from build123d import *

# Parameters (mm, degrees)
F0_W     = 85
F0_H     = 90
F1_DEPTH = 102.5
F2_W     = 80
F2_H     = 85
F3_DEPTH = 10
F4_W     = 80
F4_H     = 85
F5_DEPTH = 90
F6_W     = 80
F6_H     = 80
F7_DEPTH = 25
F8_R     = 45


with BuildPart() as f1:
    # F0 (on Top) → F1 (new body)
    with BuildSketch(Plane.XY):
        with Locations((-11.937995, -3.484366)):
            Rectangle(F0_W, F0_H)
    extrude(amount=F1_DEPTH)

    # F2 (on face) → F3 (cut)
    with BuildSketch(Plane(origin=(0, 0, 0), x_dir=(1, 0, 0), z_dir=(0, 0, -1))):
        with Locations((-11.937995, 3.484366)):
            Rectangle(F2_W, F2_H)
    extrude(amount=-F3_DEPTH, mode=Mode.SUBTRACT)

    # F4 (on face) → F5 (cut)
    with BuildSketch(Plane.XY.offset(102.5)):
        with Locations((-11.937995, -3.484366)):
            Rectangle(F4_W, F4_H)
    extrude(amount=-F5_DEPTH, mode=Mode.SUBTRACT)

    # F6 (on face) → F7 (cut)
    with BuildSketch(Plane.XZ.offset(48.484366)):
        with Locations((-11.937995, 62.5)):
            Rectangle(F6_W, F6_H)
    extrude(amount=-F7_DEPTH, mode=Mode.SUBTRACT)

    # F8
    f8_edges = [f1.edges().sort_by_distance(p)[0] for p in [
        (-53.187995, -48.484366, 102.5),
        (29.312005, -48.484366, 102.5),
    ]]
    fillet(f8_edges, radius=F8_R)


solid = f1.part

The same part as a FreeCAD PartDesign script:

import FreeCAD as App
import Part
import Sketcher

V = App.Vector


def edges_at(feature, points):
    """Names of the edges that pass closest to the given points."""
    edges = feature.Shape.Edges
    near = lambda p: min(range(len(edges)), key=lambda i: edges[i].distToShape(Part.Vertex(*p))[0])
    return sorted({f"Edge{near(p) + 1}" for p in points})


def add_polygon(sketch, points):
    """Adds a closed chain of lines whose ends are joined by coincident constraints."""
    first, n = sketch.GeometryCount, len(points)
    for a, b in zip(points, points[1:] + points[:1]):
        sketch.addGeometry(Part.LineSegment(App.Vector(*a, 0), App.Vector(*b, 0)), False)
    for i in range(n):
        sketch.addConstraint(Sketcher.Constraint("Coincident", first + i, 2, first + (i + 1) % n, 1))

doc = App.newDocument("Part")
params = doc.addObject("Spreadsheet::Sheet", "Params")
for row, (alias, value) in enumerate([
    ("sketch1_width", "85 mm"),
    ("sketch1_height", "90 mm"),
    ("pad1_length", "102.5 mm"),
    ("sketch2_width", "80 mm"),
    ("sketch2_height", "85 mm"),
    ("pocket1_length", "10 mm"),
    ("sketch3_width", "80 mm"),
    ("sketch3_height", "85 mm"),
    ("pocket2_length", "90 mm"),
    ("sketch4_width", "80 mm"),
    ("pocket3_length", "25 mm"),
    ("fillet_radius", "45 mm"),
], start=1):
    params.set(f"A{row}", alias)
    params.set(f"B{row}", "=" + value)
    params.setAlias(f"B{row}", alias)

body = doc.addObject("PartDesign::Body", "Body")

# Sketch on XY plane
sketch1 = body.newObject("Sketcher::SketchObject", "Sketch")
sketch1.AttachmentSupport = (doc.getObject("XY_Plane"), [""])
sketch1.MapMode = "FlatFace"
add_polygon(sketch1, [(-54, 42), (-54, -48), (31, -48), (31, 42)])  # lines 0-3
sketch1.addConstraint(Sketcher.Constraint("Vertical", 0))
sketch1.addConstraint(Sketcher.Constraint("Horizontal", 1))
sketch1.addConstraint(Sketcher.Constraint("Vertical", 2))
sketch1.addConstraint(Sketcher.Constraint("Horizontal", 3))
sketch1.addConstraint(Sketcher.Constraint("DistanceX", 1, 1, 1, 2, 85.0))
sketch1.addConstraint(Sketcher.Constraint("DistanceY", 0, 2, 0, 1, 90.0))
sketch1.addConstraint(Sketcher.Constraint("DistanceX", 0, 2, -1, 1, 54.437995))
sketch1.addConstraint(Sketcher.Constraint("DistanceY", 0, 2, -1, 1, 48.484366))
sketch1.setExpression("Constraints[8]", "Params.sketch1_width")
sketch1.setExpression("Constraints[9]", "Params.sketch1_height")
pad1 = body.newObject("PartDesign::Pad", "Pad")
pad1.Profile = sketch1
pad1.setExpression("Length", "Params.pad1_length")

# Sketch on XY plane
sketch2 = body.newObject("Sketcher::SketchObject", "Sketch001")
sketch2.AttachmentSupport = (doc.getObject("XY_Plane"), [""])
sketch2.MapMode = "FlatFace"
add_polygon(sketch2, [(-52, -46), (-52, 39), (28, 39), (28, -46)])  # lines 0-3
sketch2.addConstraint(Sketcher.Constraint("Vertical", 0))
sketch2.addConstraint(Sketcher.Constraint("Horizontal", 1))
sketch2.addConstraint(Sketcher.Constraint("Vertical", 2))
sketch2.addConstraint(Sketcher.Constraint("Horizontal", 3))
sketch2.addConstraint(Sketcher.Constraint("DistanceX", 1, 1, 1, 2, 80.0))
sketch2.addConstraint(Sketcher.Constraint("DistanceY", 0, 1, 0, 2, 85.0))
sketch2.addConstraint(Sketcher.Constraint("DistanceX", 0, 2, -1, 1, 51.937995))
sketch2.addConstraint(Sketcher.Constraint("DistanceY", -1, 1, 0, 2, 39.015634))
sketch2.setExpression("Constraints[8]", "Params.sketch2_width")
sketch2.setExpression("Constraints[9]", "Params.sketch2_height")
pocket1 = body.newObject("PartDesign::Pocket", "Pocket")
pocket1.Profile = sketch2
pocket1.setExpression("Length", "Params.pocket1_length")
pocket1.Reversed = True

# Sketch on XY plane
sketch3 = body.newObject("Sketcher::SketchObject", "Sketch002")
sketch3.AttachmentSupport = (doc.getObject("XY_Plane"), [""])
sketch3.MapMode = "FlatFace"
sketch3.AttachmentOffset = App.Placement(V(0, 0, 102.5), App.Rotation())
add_polygon(sketch3, [(-52, 39), (-52, -46), (28, -46), (28, 39)])  # lines 0-3
sketch3.addConstraint(Sketcher.Constraint("Vertical", 0))
sketch3.addConstraint(Sketcher.Constraint("Horizontal", 1))
sketch3.addConstraint(Sketcher.Constraint("Vertical", 2))
sketch3.addConstraint(Sketcher.Constraint("Horizontal", 3))
sketch3.addConstraint(Sketcher.Constraint("DistanceX", 1, 1, 1, 2, 80.0))
sketch3.addConstraint(Sketcher.Constraint("DistanceY", 0, 2, 0, 1, 85.0))
sketch3.addConstraint(Sketcher.Constraint("DistanceX", 0, 2, -1, 1, 51.937995))
sketch3.addConstraint(Sketcher.Constraint("DistanceY", 0, 2, -1, 1, 45.984366))
sketch3.setExpression("Constraints[8]", "Params.sketch3_width")
sketch3.setExpression("Constraints[9]", "Params.sketch3_height")
pocket2 = body.newObject("PartDesign::Pocket", "Pocket001")
pocket2.Profile = sketch3
pocket2.setExpression("Length", "Params.pocket2_length")

# Sketch on XZ plane
sketch4 = body.newObject("Sketcher::SketchObject", "Sketch003")
sketch4.AttachmentSupport = (doc.getObject("XZ_Plane"), [""])
sketch4.MapMode = "FlatFace"
sketch4.AttachmentOffset = App.Placement(V(0, 0, 48.484366), App.Rotation())
add_polygon(sketch4, [(-52, 102), (-52, 22), (28, 22), (28, 102)])  # lines 0-3
sketch4.addConstraint(Sketcher.Constraint("Vertical", 0))
sketch4.addConstraint(Sketcher.Constraint("Horizontal", 1))
sketch4.addConstraint(Sketcher.Constraint("Vertical", 2))
sketch4.addConstraint(Sketcher.Constraint("Horizontal", 3))
sketch4.addConstraint(Sketcher.Constraint("Equal", 3, 0))
sketch4.addConstraint(Sketcher.Constraint("DistanceX", 1, 1, 1, 2, 80.0))
sketch4.addConstraint(Sketcher.Constraint("DistanceY", -1, 1, 0, 2, 22.5))
sketch4.addConstraint(Sketcher.Constraint("DistanceX", 0, 2, -1, 1, 51.937995))
sketch4.setExpression("Constraints[9]", "Params.sketch4_width")
pocket3 = body.newObject("PartDesign::Pocket", "Pocket002")
pocket3.Profile = sketch4
pocket3.setExpression("Length", "Params.pocket3_length")
doc.recompute()

fillet = body.newObject("PartDesign::Fillet", "Fillet")
fillet.Base = (pocket3, edges_at(pocket3, [(-53.188, -48.484, 102.5), (29.312, -48.484, 102.5)]))
fillet.setExpression("Radius", "Params.fillet_radius")

doc.recompute()
